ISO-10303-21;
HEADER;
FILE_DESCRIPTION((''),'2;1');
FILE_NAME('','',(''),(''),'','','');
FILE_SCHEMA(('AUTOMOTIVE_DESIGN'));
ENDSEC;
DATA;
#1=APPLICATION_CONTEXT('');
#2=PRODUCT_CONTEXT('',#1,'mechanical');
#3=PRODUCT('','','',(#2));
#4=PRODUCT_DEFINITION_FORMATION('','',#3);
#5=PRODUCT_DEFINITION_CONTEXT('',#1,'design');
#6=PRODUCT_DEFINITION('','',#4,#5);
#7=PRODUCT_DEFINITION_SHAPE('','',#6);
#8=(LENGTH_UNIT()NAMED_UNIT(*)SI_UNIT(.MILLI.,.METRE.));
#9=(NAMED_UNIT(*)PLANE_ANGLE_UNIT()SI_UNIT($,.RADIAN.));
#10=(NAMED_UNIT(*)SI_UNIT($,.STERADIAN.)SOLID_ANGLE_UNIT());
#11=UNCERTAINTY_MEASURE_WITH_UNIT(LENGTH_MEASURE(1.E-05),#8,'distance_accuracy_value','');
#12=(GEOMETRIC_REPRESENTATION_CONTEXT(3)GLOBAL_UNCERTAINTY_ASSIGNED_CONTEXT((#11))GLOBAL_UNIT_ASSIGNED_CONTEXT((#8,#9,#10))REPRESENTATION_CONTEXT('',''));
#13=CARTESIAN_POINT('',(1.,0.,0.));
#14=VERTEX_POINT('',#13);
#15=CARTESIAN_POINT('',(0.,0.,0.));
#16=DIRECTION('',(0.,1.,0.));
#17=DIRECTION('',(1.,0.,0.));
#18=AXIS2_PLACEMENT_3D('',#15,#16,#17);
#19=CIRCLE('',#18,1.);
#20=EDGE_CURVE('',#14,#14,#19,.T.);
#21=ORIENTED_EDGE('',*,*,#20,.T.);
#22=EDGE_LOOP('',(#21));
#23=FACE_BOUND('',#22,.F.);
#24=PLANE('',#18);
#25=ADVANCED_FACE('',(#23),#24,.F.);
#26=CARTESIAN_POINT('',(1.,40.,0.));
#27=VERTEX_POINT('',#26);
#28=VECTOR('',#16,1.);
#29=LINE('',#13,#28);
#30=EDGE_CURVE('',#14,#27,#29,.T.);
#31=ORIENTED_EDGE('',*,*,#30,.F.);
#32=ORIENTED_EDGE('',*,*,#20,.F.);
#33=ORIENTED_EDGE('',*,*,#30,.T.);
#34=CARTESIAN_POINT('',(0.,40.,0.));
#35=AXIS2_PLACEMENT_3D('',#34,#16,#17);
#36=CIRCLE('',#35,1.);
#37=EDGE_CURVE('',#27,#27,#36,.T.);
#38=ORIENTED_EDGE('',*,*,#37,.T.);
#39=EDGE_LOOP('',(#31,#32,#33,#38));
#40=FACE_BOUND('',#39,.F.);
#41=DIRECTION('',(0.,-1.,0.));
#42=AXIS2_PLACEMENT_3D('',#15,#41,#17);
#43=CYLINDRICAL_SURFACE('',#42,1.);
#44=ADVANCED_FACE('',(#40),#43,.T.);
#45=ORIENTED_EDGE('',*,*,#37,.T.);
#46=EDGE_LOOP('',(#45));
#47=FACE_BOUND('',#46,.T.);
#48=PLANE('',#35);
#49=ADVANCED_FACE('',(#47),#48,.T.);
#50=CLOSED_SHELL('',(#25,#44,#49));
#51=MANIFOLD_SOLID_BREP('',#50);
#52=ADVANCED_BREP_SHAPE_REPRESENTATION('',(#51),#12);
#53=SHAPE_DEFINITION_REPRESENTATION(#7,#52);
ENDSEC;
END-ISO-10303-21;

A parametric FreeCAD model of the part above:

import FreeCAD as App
import Part
import Sketcher
Q = App.Units.Quantity

doc = App.newDocument("Part")
params = doc.addObject("Spreadsheet::Sheet", "Params")
for row, (alias, value) in enumerate([
    ("sketch1_diameter", "2 mm"),
    ("pad1_length", "40 mm"),
], start=1):
    params.set(f"A{row}", alias)
    params.set(f"B{row}", "=" + value)
    params.setAlias(f"B{row}", alias)

body = doc.addObject("PartDesign::Body", "Body")

# Sketch on XZ plane
sketch1 = body.newObject("Sketcher::SketchObject", "Sketch")
sketch1.AttachmentSupport = (doc.getObject("XZ_Plane"), [""])
sketch1.MapMode = "FlatFace"
sketch1.addGeometry(Part.Circle(App.Vector(0, 0, 0), App.Vector(0, 0, 1), 1), False)
sketch1.addConstraint(Sketcher.Constraint("Coincident", 0, 3, -1, 1))
sketch1.addConstraint(Sketcher.Constraint("Diameter", 0, Q("2 mm")))
sketch1.setExpression("Constraints[1]", "Params.sketch1_diameter")
pad1 = body.newObject("PartDesign::Pad", "Pad")
pad1.Profile = sketch1
pad1.setExpression("Length", "Params.pad1_length")
pad1.Reversed = True

doc.recompute()
